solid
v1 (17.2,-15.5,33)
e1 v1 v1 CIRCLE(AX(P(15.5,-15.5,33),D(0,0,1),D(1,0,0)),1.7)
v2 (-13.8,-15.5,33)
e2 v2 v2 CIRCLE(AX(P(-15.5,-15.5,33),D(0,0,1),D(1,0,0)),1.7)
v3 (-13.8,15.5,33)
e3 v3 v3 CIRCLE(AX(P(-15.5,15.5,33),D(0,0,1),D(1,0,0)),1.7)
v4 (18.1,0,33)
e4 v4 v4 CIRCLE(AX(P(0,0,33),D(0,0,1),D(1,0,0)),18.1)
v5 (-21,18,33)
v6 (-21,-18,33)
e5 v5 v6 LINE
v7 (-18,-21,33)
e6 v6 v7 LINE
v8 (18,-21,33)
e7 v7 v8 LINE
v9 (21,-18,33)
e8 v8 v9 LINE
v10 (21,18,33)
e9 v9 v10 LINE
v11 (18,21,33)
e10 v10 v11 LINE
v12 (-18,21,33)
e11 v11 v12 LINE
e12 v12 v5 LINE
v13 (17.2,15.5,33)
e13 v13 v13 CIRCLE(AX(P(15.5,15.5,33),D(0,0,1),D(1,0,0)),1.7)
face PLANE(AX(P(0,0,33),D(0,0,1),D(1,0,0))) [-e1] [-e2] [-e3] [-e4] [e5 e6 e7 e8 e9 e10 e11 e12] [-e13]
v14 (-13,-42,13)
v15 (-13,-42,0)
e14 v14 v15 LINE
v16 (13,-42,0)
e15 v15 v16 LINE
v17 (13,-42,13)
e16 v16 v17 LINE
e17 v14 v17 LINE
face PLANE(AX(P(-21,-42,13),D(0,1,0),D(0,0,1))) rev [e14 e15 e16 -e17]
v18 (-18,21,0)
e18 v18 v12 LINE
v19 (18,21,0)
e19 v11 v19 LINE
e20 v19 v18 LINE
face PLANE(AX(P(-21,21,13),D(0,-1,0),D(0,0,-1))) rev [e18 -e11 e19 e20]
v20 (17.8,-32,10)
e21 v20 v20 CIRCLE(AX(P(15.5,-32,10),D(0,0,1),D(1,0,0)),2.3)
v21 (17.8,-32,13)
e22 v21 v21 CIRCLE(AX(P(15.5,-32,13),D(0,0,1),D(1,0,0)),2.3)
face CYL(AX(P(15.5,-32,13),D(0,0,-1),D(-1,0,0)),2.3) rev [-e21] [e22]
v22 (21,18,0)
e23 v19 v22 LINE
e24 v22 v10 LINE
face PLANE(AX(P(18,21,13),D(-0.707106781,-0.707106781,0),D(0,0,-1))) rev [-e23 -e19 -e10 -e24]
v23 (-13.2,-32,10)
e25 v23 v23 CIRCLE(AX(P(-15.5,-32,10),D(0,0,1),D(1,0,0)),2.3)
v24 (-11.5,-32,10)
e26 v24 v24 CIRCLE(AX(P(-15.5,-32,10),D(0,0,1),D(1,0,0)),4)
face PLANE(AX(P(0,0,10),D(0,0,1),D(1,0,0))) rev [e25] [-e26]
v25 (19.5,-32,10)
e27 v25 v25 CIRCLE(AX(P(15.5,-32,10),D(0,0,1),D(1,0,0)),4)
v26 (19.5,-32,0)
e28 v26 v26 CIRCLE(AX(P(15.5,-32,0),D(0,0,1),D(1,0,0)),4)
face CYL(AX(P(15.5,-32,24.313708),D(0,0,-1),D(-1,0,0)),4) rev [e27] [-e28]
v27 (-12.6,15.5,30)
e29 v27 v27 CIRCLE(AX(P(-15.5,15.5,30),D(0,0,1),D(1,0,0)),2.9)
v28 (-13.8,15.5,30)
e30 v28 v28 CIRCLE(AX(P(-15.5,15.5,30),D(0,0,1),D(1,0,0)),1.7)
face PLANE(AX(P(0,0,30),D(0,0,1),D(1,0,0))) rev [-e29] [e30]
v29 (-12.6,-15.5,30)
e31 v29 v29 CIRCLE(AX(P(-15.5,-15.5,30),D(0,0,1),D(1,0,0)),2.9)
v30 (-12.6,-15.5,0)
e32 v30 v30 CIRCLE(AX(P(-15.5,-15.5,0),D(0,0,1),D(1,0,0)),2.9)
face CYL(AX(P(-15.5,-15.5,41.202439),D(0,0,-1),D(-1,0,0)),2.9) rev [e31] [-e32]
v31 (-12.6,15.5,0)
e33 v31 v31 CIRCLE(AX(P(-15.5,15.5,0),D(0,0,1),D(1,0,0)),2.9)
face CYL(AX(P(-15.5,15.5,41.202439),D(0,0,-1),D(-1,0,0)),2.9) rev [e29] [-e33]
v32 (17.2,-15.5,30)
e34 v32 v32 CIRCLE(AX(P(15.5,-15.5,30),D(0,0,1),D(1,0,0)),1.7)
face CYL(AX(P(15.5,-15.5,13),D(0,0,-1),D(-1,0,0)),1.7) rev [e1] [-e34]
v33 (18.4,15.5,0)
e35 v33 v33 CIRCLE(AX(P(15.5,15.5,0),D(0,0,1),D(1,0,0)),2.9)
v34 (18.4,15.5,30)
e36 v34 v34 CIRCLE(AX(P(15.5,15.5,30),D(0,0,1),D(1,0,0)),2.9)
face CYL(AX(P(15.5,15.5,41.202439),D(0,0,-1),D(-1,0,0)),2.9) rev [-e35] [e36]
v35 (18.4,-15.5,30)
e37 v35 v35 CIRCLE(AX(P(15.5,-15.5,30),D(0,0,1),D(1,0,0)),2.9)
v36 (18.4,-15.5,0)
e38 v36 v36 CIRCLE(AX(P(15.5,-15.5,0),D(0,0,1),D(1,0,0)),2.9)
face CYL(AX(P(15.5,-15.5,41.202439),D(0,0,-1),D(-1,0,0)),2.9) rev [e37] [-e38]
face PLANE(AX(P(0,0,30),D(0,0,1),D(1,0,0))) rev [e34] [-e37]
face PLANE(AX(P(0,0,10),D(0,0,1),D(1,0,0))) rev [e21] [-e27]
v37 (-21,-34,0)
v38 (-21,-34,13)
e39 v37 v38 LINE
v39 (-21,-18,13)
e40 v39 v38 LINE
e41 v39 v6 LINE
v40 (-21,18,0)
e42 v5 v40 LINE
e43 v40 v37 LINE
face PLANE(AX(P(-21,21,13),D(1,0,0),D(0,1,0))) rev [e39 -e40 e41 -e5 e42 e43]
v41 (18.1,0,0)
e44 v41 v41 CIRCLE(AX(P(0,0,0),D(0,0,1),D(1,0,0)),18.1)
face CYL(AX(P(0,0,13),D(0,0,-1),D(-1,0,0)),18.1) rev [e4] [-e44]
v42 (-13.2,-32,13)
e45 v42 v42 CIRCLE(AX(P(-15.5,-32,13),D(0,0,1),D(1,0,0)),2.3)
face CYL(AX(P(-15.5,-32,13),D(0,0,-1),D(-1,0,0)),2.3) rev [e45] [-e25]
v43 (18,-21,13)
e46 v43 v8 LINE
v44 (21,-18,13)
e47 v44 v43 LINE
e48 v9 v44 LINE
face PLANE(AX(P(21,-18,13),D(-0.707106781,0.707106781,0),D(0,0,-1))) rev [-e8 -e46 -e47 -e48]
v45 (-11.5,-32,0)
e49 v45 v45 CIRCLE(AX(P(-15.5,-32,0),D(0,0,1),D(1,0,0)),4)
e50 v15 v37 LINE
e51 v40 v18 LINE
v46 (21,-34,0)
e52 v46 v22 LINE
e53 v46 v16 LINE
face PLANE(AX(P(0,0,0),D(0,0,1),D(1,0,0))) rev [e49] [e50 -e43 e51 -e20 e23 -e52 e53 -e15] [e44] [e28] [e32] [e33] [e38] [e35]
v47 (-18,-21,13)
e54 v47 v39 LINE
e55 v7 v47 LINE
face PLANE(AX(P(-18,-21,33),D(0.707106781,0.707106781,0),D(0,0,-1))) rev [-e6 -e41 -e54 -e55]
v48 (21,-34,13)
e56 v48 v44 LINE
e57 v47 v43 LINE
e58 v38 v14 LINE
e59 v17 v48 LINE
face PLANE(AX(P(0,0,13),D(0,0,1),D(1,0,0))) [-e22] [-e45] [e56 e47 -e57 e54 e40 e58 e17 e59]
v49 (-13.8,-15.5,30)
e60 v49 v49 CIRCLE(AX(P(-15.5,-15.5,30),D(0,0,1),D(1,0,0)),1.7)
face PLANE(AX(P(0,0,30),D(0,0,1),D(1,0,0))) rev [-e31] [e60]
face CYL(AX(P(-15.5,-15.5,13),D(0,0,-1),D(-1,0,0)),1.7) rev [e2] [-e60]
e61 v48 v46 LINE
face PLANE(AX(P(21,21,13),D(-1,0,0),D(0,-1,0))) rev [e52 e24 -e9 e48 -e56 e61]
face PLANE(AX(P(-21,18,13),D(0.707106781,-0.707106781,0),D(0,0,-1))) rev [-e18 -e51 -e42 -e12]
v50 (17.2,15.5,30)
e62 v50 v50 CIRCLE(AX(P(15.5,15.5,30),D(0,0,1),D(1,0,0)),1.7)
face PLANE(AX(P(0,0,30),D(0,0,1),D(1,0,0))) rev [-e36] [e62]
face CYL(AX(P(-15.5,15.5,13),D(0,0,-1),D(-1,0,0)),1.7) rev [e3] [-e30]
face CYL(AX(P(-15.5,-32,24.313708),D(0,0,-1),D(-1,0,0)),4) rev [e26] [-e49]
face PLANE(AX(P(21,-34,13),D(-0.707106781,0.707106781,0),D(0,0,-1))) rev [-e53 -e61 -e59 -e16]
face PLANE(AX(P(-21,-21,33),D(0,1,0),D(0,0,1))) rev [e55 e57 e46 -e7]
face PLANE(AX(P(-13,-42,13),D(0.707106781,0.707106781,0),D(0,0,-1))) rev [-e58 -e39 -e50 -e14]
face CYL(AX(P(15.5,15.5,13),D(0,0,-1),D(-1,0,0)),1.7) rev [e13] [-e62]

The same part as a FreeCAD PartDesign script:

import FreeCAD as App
import Part
import Sketcher
Q = App.Units.Quantity


def edges_at(feature, points):
    """Names of the edges that pass closest to the given points."""
    edges = feature.Shape.Edges
    near = lambda p: min(range(len(edges)), key=lambda i: edges[i].distToShape(Part.Vertex(*p))[0])
    return sorted({f"Edge{near(p) + 1}" for p in points})

doc = App.newDocument("Part")
body = doc.addObject("PartDesign::Body", "Body")

sketch1 = body.newObject("Sketcher::SketchObject", "Sketch")
sketch1.AttachmentSupport = (doc.getObject("XY_Plane"), [""])
sketch1.MapMode = "FlatFace"
sketch1.addGeometry([
    Part.LineSegment(App.Vector(-21, 21, 0), App.Vector(-21, -42, 0)),
    Part.LineSegment(App.Vector(-21, -42, 0), App.Vector(21, -42, 0)),
    Part.LineSegment(App.Vector(21, -42, 0), App.Vector(21, 21, 0)),
    Part.LineSegment(App.Vector(21, 21, 0), App.Vector(-21, 21, 0)),
    Part.Circle(App.Vector(-15.5, -32, 0), App.Vector(0, 0, 1), 2.3),
    Part.Circle(App.Vector(-15.5, -15.5, 0), App.Vector(0, 0, 1), 1.7),
    Part.Circle(App.Vector(15.5, -32, 0), App.Vector(0, 0, 1), 2.3),
    Part.Circle(App.Vector(15.5, -15.5, 0), App.Vector(0, 0, 1), 1.7),
    Part.Circle(App.Vector(-15.5, 15.5, 0), App.Vector(0, 0, 1), 1.7),
    Part.Circle(App.Vector(0, 0, 0), App.Vector(0, 0, 1), 18.1),
    Part.Circle(App.Vector(15.5, 15.5, 0), App.Vector(0, 0, 1), 1.7),
], False)
sketch1.addConstraint([
    Sketcher.Constraint("Coincident", 0, 2, 1, 1),
    Sketcher.Constraint("Coincident", 1, 2, 2, 1),
    Sketcher.Constraint("Coincident", 2, 2, 3, 1),
    Sketcher.Constraint("Coincident", 3, 2, 0, 1),
    Sketcher.Constraint("Vertical", 0),
    Sketcher.Constraint("Horizontal", 1),
    Sketcher.Constraint("Vertical", 2),
    Sketcher.Constraint("Horizontal", 3),
    Sketcher.Constraint("Coincident", 9, 3, -1, 1),
    Sketcher.Constraint("Equal", 4, 6),
    Sketcher.Constraint("Equal", 5, 7),
    Sketcher.Constraint("Equal", 7, 8),
    Sketcher.Constraint("Equal", 8, 10),
    Sketcher.Constraint("Symmetric", 7, 3, 8, 3, -1, 1),
    Sketcher.Constraint("Symmetric", 5, 3, 10, 3, -1, 1),
    Sketcher.Constraint("Symmetric", 4, 3, 6, 3, -2),
    Sketcher.Constraint("Symmetric", 5, 3, 7, 3, -2),
    Sketcher.Constraint("Vertical", 4, 3, 5, 3),
    Sketcher.Constraint("Diameter", 4, Q("4.6 mm")),
    Sketcher.Constraint("Diameter", 5, Q("3.4 mm")),
    Sketcher.Constraint("Diameter", 9, Q("36.2 mm")),
    Sketcher.Constraint("DistanceX", 1, 1, 1, 2, Q("42 mm")),
    Sketcher.Constraint("DistanceY", 0, 2, 0, 1, Q("63 mm")),
    Sketcher.Constraint("DistanceY", 4, 3, -1, 1, Q("32 mm")),
    Sketcher.Constraint("DistanceX", 0, 2, -1, 1, Q("21 mm")),
    Sketcher.Constraint("DistanceY", 0, 2, -1, 1, Q("42 mm")),
    Sketcher.Constraint("DistanceX", 4, 3, 6, 3, Q("31 mm")),
    Sketcher.Constraint("DistanceY", 5, 3, 8, 3, Q("31 mm")),
])
pad1 = body.newObject("PartDesign::Pad", "Pad")
pad1.Profile = sketch1
pad1.Length = 13

sketch2 = body.newObject("Sketcher::SketchObject", "Sketch001")
sketch2.AttachmentSupport = (doc.getObject("XY_Plane"), [""])
sketch2.MapMode = "FlatFace"
sketch2.AttachmentOffset = App.Placement(App.Vector(0, 0, 13), App.Rotation())
sketch2.addGeometry([
    Part.LineSegment(App.Vector(-21, 21, 0), App.Vector(-21, -21, 0)),
    Part.LineSegment(App.Vector(-21, -21, 0), App.Vector(21, -21, 0)),
    Part.LineSegment(App.Vector(21, -21, 0), App.Vector(21, 21, 0)),
    Part.LineSegment(App.Vector(21, 21, 0), App.Vector(-21, 21, 0)),
    Part.Circle(App.Vector(-15.5, -15.5, 0), App.Vector(0, 0, 1), 1.7),
    Part.Circle(App.Vector(15.5, -15.5, 0), App.Vector(0, 0, 1), 1.7),
    Part.Circle(App.Vector(-15.5, 15.5, 0), App.Vector(0, 0, 1), 1.7),
    Part.Circle(App.Vector(0, 0, 0), App.Vector(0, 0, 1), 18.1),
    Part.Circle(App.Vector(15.5, 15.5, 0), App.Vector(0, 0, 1), 1.7),
], False)
sketch2.addConstraint([
    Sketcher.Constraint("Coincident", 0, 2, 1, 1),
    Sketcher.Constraint("Coincident", 1, 2, 2, 1),
    Sketcher.Constraint("Coincident", 2, 2, 3, 1),
    Sketcher.Constraint("Coincident", 3, 2, 0, 1),
    Sketcher.Constraint("Vertical", 0),
    Sketcher.Constraint("Horizontal", 1),
    Sketcher.Constraint("Vertical", 2),
    Sketcher.Constraint("Horizontal", 3),
    Sketcher.Constraint("Coincident", 7, 3, -1, 1),
    Sketcher.Constraint("Equal", 4, 5),
    Sketcher.Constraint("Equal", 5, 6),
    Sketcher.Constraint("Equal", 6, 8),
    Sketcher.Constraint("Symmetric", 5, 3, 6, 3, -1, 1),
    Sketcher.Constraint("Symmetric", 4, 3, 8, 3, -1, 1),
    Sketcher.Constraint("Symmetric", 0, 2, 2, 2, -1, 1),
    Sketcher.Constraint("Symmetric", 4, 3, 5, 3, -2),
    Sketcher.Constraint("Equal", 3, 0),
    Sketcher.Constraint("Diameter", 4, Q("3.4 mm")),
    Sketcher.Constraint("Diameter", 7, Q("36.2 mm")),
    Sketcher.Constraint("DistanceX", 1, 1, 1, 2, Q("42 mm")),
    Sketcher.Constraint("DistanceX", 4, 3, 5, 3, Q("31 mm")),
    Sketcher.Constraint("DistanceY", 4, 3, 6, 3, Q("31 mm")),
])
pad2 = body.newObject("PartDesign::Pad", "Pad001")
pad2.Profile = sketch2
pad2.Length = 20

sketch3 = body.newObject("Sketcher::SketchObject", "Sketch002")
sketch3.AttachmentSupport = (doc.getObject("XY_Plane"), [""])
sketch3.MapMode = "FlatFace"
sketch3.addGeometry([
    Part.Circle(App.Vector(-15.5, -32, 0), App.Vector(0, 0, 1), 4),
    Part.Circle(App.Vector(15.5, -32, 0), App.Vector(0, 0, 1), 4),
], False)
sketch3.addConstraint([
    Sketcher.Constraint("Equal", 0, 1),
    Sketcher.Constraint("Symmetric", 0, 3, 1, 3, -2),
    Sketcher.Constraint("Diameter", 0, Q("8 mm")),
    Sketcher.Constraint("DistanceY", 0, 3, -1, 1, Q("32 mm")),
    Sketcher.Constraint("DistanceX", 0, 3, 1, 3, Q("31 mm")),
])
pocket1 = body.newObject("PartDesign::Pocket", "Pocket")
pocket1.Profile = sketch3
pocket1.Length = 10
pocket1.Reversed = True

sketch4 = body.newObject("Sketcher::SketchObject", "Sketch003")
sketch4.AttachmentSupport = (doc.getObject("XY_Plane"), [""])
sketch4.MapMode = "FlatFace"
sketch4.addGeometry([
    Part.Circle(App.Vector(-15.5, 15.5, 0), App.Vector(0, 0, 1), 2.9),
    Part.Circle(App.Vector(15.5, 15.5, 0), App.Vector(0, 0, 1), 2.9),
    Part.Circle(App.Vector(-15.5, -15.5, 0), App.Vector(0, 0, 1), 2.9),
    Part.Circle(App.Vector(15.5, -15.5, 0), App.Vector(0, 0, 1), 2.9),
], False)
sketch4.addConstraint([
    Sketcher.Constraint("Equal", 0, 1),
    Sketcher.Constraint("Equal", 1, 2),
    Sketcher.Constraint("Equal", 2, 3),
    Sketcher.Constraint("Symmetric", 1, 3, 2, 3, -1, 1),
    Sketcher.Constraint("Symmetric", 0, 3, 3, 3, -1, 1),
    Sketcher.Constraint("Symmetric", 0, 3, 1, 3, -2),
    Sketcher.Constraint("Diameter", 0, Q("5.8 mm")),
    Sketcher.Constraint("DistanceX", 0, 3, 1, 3, Q("31 mm")),
    Sketcher.Constraint("DistanceY", 2, 3, 0, 3, Q("31 mm")),
])
pocket2 = body.newObject("PartDesign::Pocket", "Pocket001")
pocket2.Profile = sketch4
pocket2.Length = 30
pocket2.Reversed = True
doc.recompute()

chamfer = body.newObject("PartDesign::Chamfer", "Chamfer")
chamfer.Base = (pocket2, edges_at(pocket2, [
    (-21, -21, 23),
    (21, -21, 23),
    (-21, 21, 16.5),
    (21, 21, 16.5),
]))
chamfer.Size = 3
doc.recompute()

chamfer2 = body.newObject("PartDesign::Chamfer", "Chamfer001")
chamfer2.Base = (chamfer, edges_at(chamfer, [(21, -42, 6.5), (-21, -42, 6.5)]))
chamfer2.Size = 8

doc.recompute()
